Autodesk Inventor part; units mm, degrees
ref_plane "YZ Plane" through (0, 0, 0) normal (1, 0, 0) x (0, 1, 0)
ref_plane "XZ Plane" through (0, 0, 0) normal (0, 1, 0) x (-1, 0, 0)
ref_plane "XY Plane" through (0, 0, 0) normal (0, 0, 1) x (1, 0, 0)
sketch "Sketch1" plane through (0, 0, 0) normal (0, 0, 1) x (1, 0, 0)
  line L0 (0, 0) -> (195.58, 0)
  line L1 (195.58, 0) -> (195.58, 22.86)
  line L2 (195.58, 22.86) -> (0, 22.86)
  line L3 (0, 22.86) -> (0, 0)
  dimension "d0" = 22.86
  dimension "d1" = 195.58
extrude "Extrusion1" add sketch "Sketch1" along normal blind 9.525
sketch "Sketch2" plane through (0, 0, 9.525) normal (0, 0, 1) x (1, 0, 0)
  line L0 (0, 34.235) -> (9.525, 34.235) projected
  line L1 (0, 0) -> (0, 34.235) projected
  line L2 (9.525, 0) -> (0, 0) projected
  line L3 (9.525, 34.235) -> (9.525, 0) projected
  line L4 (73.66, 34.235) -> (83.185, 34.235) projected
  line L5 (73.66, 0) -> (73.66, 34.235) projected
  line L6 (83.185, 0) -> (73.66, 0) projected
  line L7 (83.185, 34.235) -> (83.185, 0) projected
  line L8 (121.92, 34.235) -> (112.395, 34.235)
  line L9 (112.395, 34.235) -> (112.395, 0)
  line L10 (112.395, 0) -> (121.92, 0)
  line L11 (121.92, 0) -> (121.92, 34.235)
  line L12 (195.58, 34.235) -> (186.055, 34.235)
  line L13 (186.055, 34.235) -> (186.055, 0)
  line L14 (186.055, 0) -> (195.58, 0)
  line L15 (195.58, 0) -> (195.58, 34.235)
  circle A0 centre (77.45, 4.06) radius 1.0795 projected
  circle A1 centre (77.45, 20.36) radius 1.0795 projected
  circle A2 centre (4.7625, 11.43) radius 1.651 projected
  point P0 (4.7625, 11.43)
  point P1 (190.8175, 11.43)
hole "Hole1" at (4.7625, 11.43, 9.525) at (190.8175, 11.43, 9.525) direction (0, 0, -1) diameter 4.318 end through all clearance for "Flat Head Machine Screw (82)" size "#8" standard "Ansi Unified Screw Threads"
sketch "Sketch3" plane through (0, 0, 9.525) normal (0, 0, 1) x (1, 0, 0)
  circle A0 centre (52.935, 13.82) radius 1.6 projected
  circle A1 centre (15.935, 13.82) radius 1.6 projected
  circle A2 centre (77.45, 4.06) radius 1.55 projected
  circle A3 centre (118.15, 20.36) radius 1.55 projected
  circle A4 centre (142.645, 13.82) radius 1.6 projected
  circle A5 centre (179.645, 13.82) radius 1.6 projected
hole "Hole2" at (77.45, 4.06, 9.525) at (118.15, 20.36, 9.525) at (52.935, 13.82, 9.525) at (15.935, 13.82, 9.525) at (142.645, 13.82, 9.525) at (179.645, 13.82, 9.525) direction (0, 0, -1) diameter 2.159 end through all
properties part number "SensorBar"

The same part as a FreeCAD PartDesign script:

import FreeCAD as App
import Part
import Sketcher
from FreeCAD import Vector
Q = App.Units.Quantity


def add_polygon(sketch, points):
    """Adds a closed chain of lines whose ends are joined by coincident constraints."""
    first, n = sketch.GeometryCount, len(points)
    for a, b in zip(points, points[1:] + points[:1]):
        sketch.addGeometry(Part.LineSegment(App.Vector(*a, 0), App.Vector(*b, 0)), False)
    for i in range(n):
        sketch.addConstraint(Sketcher.Constraint("Coincident", first + i, 2, first + (i + 1) % n, 1))

doc = App.newDocument("Part")
body = doc.addObject("PartDesign::Body", "Body")

# Sketch on XY plane
sketch1 = body.newObject("Sketcher::SketchObject", "Sketch")
sketch1.AttachmentSupport = (doc.getObject("XY_Plane"), [""])
sketch1.MapMode = "FlatFace"
add_polygon(sketch1, [(0, 22.86), (0, 0), (195.58, 0), (195.58, 22.86)])  # lines 0-3
sketch1.addConstraint([
    Sketcher.Constraint("Vertical", 0),
    Sketcher.Constraint("Horizontal", 1),
    Sketcher.Constraint("Vertical", 2),
    Sketcher.Constraint("Horizontal", 3),
    Sketcher.Constraint("Coincident", 0, 2, -1, 1),
    Sketcher.Constraint("DistanceX", 1, 1, 1, 2, Q("7.7 in")),
    Sketcher.Constraint("DistanceY", 0, 2, 0, 1, Q("0.9 in")),
])
pad1 = body.newObject("PartDesign::Pad", "Pad")
pad1.Profile = sketch1
pad1.Length = Q("0.375 in")

# Sketch on XY plane
sketch2 = body.newObject("Sketcher::SketchObject", "Sketch001")
sketch2.AttachmentSupport = (doc.getObject("XY_Plane"), [""])
sketch2.MapMode = "FlatFace"
sketch2.AttachmentOffset = App.Placement(Vector(0, 0, 0.375 * 25.4), App.Rotation())
sketch2.addGeometry([
    Part.Circle(Vector(4.7625, 11.43, 0), Vector(0, 0, 1), 2.159),
    Part.Circle(Vector(190.8175, 11.43, 0), Vector(0, 0, 1), 2.159),
], False)
sketch2.addConstraint([
    Sketcher.Constraint("Equal", 0, 1),
    Sketcher.Constraint("Horizontal", 0, 3, 1, 3),
    Sketcher.Constraint("Diameter", 0, Q("0.17 in")),
    Sketcher.Constraint("DistanceY", -1, 1, 0, 3, Q("0.45 in")),
    Sketcher.Constraint("DistanceX", -1, 1, 0, 3, Q("0.1875 in")),
    Sketcher.Constraint("DistanceX", 0, 3, 1, 3, Q("7.325 in")),
])
doc.recompute()
hole = body.newObject("PartDesign::Hole", "Hole")
hole.Profile = sketch2
hole.ThreadType = "None"
hole.Diameter = Q("0.17 in")
hole.DepthType = "ThroughAll"

# Sketch on XY plane
sketch3 = body.newObject("Sketcher::SketchObject", "Sketch002")
sketch3.AttachmentSupport = (doc.getObject("XY_Plane"), [""])
sketch3.MapMode = "FlatFace"
sketch3.AttachmentOffset = App.Placement(Vector(0, 0, 0.375 * 25.4), App.Rotation())
sketch3.addGeometry([
    Part.Circle(Vector(77.45, 4.06, 0), Vector(0, 0, 1), 1.0795),  # 0
    Part.Circle(Vector(118.15, 20.36, 0), Vector(0, 0, 1), 1.0795),  # 1
    Part.Circle(Vector(52.935, 13.82, 0), Vector(0, 0, 1), 1.0795),  # 2
    Part.Circle(Vector(15.935, 13.82, 0), Vector(0, 0, 1), 1.0795),  # 3
    Part.Circle(Vector(142.645, 13.82, 0), Vector(0, 0, 1), 1.0795),  # 4
    Part.Circle(Vector(179.645, 13.82, 0), Vector(0, 0, 1), 1.0795),  # 5
], False)
sketch3.addConstraint([
    Sketcher.Constraint("Equal", 0, 1),
    Sketcher.Constraint("Equal", 1, 2),
    Sketcher.Constraint("Equal", 2, 3),
    Sketcher.Constraint("Equal", 3, 4),
    Sketcher.Constraint("Equal", 4, 5),
    Sketcher.Constraint("Horizontal", 2, 3, 3, 3),
    Sketcher.Constraint("Horizontal", 3, 3, 4, 3),
    Sketcher.Constraint("Horizontal", 4, 3, 5, 3),
    Sketcher.Constraint("Diameter", 0, Q("0.085 in")),
    Sketcher.Constraint("DistanceY", -1, 1, 2, 3, Q("0.5441 in")),
    Sketcher.Constraint("DistanceX", 3, 3, 2, 3, Q("1.4567 in")),
    Sketcher.Constraint("DistanceX", 2, 3, 4, 3, Q("3.5319 in")),
    Sketcher.Constraint("DistanceX", 4, 3, 5, 3, Q("1.4567 in")),
    Sketcher.Constraint("DistanceX", -1, 1, 0, 3, 77.45),
    Sketcher.Constraint("DistanceY", -1, 1, 0, 3, 4.06),
    Sketcher.Constraint("DistanceX", -1, 1, 1, 3, 118.15),
    Sketcher.Constraint("DistanceY", -1, 1, 1, 3, 20.36),
    Sketcher.Constraint("DistanceX", -1, 1, 2, 3, 52.935),
])
doc.recompute()
hole2 = body.newObject("PartDesign::Hole", "Hole001")
hole2.Profile = sketch3
hole2.ThreadType = "None"
hole2.Diameter = Q("0.085 in")
hole2.DepthType = "ThroughAll"

doc.recompute()
